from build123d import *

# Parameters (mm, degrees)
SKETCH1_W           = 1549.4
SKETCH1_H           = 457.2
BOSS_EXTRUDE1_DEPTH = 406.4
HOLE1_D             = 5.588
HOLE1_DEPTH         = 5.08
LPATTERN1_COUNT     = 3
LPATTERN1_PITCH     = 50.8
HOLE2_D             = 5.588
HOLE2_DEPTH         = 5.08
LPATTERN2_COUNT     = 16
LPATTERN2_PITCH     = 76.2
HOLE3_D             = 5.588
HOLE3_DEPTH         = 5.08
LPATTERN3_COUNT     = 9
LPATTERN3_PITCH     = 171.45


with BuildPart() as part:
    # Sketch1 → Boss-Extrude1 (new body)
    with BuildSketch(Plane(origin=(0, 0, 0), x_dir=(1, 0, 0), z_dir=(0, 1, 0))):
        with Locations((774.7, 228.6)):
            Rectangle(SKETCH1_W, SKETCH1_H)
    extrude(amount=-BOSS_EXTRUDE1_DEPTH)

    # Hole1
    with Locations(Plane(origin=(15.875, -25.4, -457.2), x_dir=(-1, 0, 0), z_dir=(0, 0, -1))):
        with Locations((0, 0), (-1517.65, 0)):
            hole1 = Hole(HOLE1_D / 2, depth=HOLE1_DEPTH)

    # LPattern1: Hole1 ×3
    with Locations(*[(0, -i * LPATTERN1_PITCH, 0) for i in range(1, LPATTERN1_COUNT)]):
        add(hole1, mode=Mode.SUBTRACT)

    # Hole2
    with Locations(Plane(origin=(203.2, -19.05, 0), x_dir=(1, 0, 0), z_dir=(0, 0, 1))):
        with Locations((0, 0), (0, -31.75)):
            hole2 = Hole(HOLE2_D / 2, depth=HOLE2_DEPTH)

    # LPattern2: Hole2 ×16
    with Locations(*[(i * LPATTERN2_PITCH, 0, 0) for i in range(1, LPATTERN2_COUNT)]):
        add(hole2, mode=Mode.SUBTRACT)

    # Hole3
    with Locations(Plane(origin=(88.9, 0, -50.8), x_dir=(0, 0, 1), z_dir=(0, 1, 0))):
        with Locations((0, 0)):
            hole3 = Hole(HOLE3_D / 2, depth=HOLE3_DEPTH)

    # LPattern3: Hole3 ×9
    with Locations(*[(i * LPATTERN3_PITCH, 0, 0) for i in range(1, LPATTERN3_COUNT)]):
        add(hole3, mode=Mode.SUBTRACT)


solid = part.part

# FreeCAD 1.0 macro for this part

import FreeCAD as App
import Part
import Sketcher
from FreeCAD import Vector
Q = App.Units.Quantity


def add_polygon(sketch, points):
    """Adds a closed chain of lines whose ends are joined by coincident constraints."""
    first, n = sketch.GeometryCount, len(points)
    for a, b in zip(points, points[1:] + points[:1]):
        sketch.addGeometry(Part.LineSegment(App.Vector(*a, 0), App.Vector(*b, 0)), False)
    for i in range(n):
        sketch.addConstraint(Sketcher.Constraint("Coincident", first + i, 2, first + (i + 1) % n, 1))

doc = App.newDocument("Part")
body = doc.addObject("PartDesign::Body", "Body")

sketch1 = body.newObject("Sketcher::SketchObject", "Sketch")
sketch1.AttachmentSupport = (doc.getObject("XZ_Plane"), [""])
sketch1.MapMode = "FlatFace"
add_polygon(sketch1, [(0, -457), (0, 0), (1549, 0), (1549, -457)])
sketch1.addConstraint(Sketcher.Constraint("Vertical", 0))
sketch1.addConstraint(Sketcher.Constraint("Horizontal", 1))
sketch1.addConstraint(Sketcher.Constraint("Vertical", 2))
sketch1.addConstraint(Sketcher.Constraint("Horizontal", 3))
sketch1.addConstraint(Sketcher.Constraint("Coincident", 0, 2, -1, 1))
sketch1.addConstraint(Sketcher.Constraint("DistanceX", 1, 1, 1, 2, Q("61 in")))
sketch1.addConstraint(Sketcher.Constraint("DistanceY", 0, 1, 0, 2, Q("18 in")))
pad1 = body.newObject("PartDesign::Pad", "Pad")
pad1.Profile = sketch1
pad1.Length = Q("16 in")

sketch2 = body.newObject("Sketcher::SketchObject", "Sketch001")
sketch2.AttachmentSupport = (doc.getObject("XY_Plane"), [""])
sketch2.MapMode = "FlatFace"
sketch2.AttachmentOffset = App.Placement(Vector(0, 0, -18 * 25.4), App.Rotation())
sketch2.addGeometry(Part.Circle(Vector(15.9, -25.4, 0), Vector(0, 0, 1), 2.8), False)
sketch2.addGeometry(Part.Circle(Vector(1533.5, -25.4, 0), Vector(0, 0, 1), 2.8), False)
sketch2.addConstraint(Sketcher.Constraint("Equal", 0, 1))
sketch2.addConstraint(Sketcher.Constraint("Horizontal", 0, 3, 1, 3))
sketch2.addConstraint(Sketcher.Constraint("Diameter", 0, Q("0.22 in")))
sketch2.addConstraint(Sketcher.Constraint("DistanceY", 0, 3, -1, 1, Q("1 in")))
sketch2.addConstraint(Sketcher.Constraint("DistanceX", 0, 3, 1, 3, Q("59.75 in")))
sketch2.addConstraint(Sketcher.Constraint("DistanceX", -1, 1, 0, 3, Q("0.625 in")))
doc.recompute()
hole = body.newObject("PartDesign::Hole", "Hole")
hole.Profile = sketch2
hole.ThreadType = "None"
hole.Diameter = Q("0.22 in")
hole.DepthType = "Dimension"
hole.Depth = Q("0.2 in")
hole.DrillPoint = "Flat"
hole.Reversed = True
doc.recompute()

linearpattern = body.newObject("PartDesign::LinearPattern", "LinearPattern")
linearpattern.Originals = [hole]
linearpattern.Direction = (doc.getObject("Y_Axis"), [""])
linearpattern.Mode = "offset"
linearpattern.Offset = Q("2 in")
linearpattern.Occurrences = 3
linearpattern.Reversed = True
body.Tip = linearpattern

sketch3 = body.newObject("Sketcher::SketchObject", "Sketch002")
sketch3.AttachmentSupport = (doc.getObject("XY_Plane"), [""])
sketch3.MapMode = "FlatFace"
sketch3.addGeometry(Part.Circle(Vector(203.2, -19.1, 0), Vector(0, 0, 1), 2.8), False)
sketch3.addGeometry(Part.Circle(Vector(203.2, -50.8, 0), Vector(0, 0, 1), 2.8), False)
sketch3.addConstraint(Sketcher.Constraint("Equal", 0, 1))
sketch3.addConstraint(Sketcher.Constraint("Vertical", 0, 3, 1, 3))
sketch3.addConstraint(Sketcher.Constraint("Diameter", 0, Q("0.22 in")))
sketch3.addConstraint(Sketcher.Constraint("DistanceX", -1, 1, 0, 3, Q("8 in")))
sketch3.addConstraint(Sketcher.Constraint("DistanceY", 1, 3, -1, 1, Q("2 in")))
sketch3.addConstraint(Sketcher.Constraint("DistanceY", 0, 3, -1, 1, Q("0.75 in")))
doc.recompute()
hole2 = body.newObject("PartDesign::Hole", "Hole001")
hole2.Profile = sketch3
hole2.ThreadType = "None"
hole2.Diameter = Q("0.22 in")
hole2.DepthType = "Dimension"
hole2.Depth = Q("0.2 in")
hole2.DrillPoint = "Flat"
doc.recompute()

linearpattern2 = body.newObject("PartDesign::LinearPattern", "LinearPattern001")
linearpattern2.Originals = [hole2]
linearpattern2.Direction = (doc.getObject("X_Axis"), [""])
linearpattern2.Mode = "offset"
linearpattern2.Offset = Q("3 in")
linearpattern2.Occurrences = 16
body.Tip = linearpattern2

sketch4 = body.newObject("Sketcher::SketchObject", "Sketch003")
sketch4.AttachmentSupport = (doc.getObject("XZ_Plane"), [""])
sketch4.MapMode = "FlatFace"
sketch4.addGeometry(Part.Circle(Vector(88.9, -50.8, 0), Vector(0, 0, 1), 2.8), False)
sketch4.addConstraint(Sketcher.Constraint("Diameter", 0, Q("0.22 in")))
sketch4.addConstraint(Sketcher.Constraint("DistanceY", 0, 3, -1, 1, Q("2 in")))
sketch4.addConstraint(Sketcher.Constraint("DistanceX", -1, 1, 0, 3, Q("3.5 in")))
doc.recompute()
hole3 = body.newObject("PartDesign::Hole", "Hole002")
hole3.Profile = sketch4
hole3.ThreadType = "None"
hole3.Diameter = Q("0.22 in")
hole3.DepthType = "Dimension"
hole3.Depth = Q("0.2 in")
hole3.DrillPoint = "Flat"
hole3.Reversed = True
doc.recompute()

linearpattern3 = body.newObject("PartDesign::LinearPattern", "LinearPattern002")
linearpattern3.Originals = [hole3]
linearpattern3.Direction = (doc.getObject("X_Axis"), [""])
linearpattern3.Mode = "offset"
linearpattern3.Offset = Q("6.75 in")
linearpattern3.Occurrences = 9
body.Tip = linearpattern3

doc.recompute()
